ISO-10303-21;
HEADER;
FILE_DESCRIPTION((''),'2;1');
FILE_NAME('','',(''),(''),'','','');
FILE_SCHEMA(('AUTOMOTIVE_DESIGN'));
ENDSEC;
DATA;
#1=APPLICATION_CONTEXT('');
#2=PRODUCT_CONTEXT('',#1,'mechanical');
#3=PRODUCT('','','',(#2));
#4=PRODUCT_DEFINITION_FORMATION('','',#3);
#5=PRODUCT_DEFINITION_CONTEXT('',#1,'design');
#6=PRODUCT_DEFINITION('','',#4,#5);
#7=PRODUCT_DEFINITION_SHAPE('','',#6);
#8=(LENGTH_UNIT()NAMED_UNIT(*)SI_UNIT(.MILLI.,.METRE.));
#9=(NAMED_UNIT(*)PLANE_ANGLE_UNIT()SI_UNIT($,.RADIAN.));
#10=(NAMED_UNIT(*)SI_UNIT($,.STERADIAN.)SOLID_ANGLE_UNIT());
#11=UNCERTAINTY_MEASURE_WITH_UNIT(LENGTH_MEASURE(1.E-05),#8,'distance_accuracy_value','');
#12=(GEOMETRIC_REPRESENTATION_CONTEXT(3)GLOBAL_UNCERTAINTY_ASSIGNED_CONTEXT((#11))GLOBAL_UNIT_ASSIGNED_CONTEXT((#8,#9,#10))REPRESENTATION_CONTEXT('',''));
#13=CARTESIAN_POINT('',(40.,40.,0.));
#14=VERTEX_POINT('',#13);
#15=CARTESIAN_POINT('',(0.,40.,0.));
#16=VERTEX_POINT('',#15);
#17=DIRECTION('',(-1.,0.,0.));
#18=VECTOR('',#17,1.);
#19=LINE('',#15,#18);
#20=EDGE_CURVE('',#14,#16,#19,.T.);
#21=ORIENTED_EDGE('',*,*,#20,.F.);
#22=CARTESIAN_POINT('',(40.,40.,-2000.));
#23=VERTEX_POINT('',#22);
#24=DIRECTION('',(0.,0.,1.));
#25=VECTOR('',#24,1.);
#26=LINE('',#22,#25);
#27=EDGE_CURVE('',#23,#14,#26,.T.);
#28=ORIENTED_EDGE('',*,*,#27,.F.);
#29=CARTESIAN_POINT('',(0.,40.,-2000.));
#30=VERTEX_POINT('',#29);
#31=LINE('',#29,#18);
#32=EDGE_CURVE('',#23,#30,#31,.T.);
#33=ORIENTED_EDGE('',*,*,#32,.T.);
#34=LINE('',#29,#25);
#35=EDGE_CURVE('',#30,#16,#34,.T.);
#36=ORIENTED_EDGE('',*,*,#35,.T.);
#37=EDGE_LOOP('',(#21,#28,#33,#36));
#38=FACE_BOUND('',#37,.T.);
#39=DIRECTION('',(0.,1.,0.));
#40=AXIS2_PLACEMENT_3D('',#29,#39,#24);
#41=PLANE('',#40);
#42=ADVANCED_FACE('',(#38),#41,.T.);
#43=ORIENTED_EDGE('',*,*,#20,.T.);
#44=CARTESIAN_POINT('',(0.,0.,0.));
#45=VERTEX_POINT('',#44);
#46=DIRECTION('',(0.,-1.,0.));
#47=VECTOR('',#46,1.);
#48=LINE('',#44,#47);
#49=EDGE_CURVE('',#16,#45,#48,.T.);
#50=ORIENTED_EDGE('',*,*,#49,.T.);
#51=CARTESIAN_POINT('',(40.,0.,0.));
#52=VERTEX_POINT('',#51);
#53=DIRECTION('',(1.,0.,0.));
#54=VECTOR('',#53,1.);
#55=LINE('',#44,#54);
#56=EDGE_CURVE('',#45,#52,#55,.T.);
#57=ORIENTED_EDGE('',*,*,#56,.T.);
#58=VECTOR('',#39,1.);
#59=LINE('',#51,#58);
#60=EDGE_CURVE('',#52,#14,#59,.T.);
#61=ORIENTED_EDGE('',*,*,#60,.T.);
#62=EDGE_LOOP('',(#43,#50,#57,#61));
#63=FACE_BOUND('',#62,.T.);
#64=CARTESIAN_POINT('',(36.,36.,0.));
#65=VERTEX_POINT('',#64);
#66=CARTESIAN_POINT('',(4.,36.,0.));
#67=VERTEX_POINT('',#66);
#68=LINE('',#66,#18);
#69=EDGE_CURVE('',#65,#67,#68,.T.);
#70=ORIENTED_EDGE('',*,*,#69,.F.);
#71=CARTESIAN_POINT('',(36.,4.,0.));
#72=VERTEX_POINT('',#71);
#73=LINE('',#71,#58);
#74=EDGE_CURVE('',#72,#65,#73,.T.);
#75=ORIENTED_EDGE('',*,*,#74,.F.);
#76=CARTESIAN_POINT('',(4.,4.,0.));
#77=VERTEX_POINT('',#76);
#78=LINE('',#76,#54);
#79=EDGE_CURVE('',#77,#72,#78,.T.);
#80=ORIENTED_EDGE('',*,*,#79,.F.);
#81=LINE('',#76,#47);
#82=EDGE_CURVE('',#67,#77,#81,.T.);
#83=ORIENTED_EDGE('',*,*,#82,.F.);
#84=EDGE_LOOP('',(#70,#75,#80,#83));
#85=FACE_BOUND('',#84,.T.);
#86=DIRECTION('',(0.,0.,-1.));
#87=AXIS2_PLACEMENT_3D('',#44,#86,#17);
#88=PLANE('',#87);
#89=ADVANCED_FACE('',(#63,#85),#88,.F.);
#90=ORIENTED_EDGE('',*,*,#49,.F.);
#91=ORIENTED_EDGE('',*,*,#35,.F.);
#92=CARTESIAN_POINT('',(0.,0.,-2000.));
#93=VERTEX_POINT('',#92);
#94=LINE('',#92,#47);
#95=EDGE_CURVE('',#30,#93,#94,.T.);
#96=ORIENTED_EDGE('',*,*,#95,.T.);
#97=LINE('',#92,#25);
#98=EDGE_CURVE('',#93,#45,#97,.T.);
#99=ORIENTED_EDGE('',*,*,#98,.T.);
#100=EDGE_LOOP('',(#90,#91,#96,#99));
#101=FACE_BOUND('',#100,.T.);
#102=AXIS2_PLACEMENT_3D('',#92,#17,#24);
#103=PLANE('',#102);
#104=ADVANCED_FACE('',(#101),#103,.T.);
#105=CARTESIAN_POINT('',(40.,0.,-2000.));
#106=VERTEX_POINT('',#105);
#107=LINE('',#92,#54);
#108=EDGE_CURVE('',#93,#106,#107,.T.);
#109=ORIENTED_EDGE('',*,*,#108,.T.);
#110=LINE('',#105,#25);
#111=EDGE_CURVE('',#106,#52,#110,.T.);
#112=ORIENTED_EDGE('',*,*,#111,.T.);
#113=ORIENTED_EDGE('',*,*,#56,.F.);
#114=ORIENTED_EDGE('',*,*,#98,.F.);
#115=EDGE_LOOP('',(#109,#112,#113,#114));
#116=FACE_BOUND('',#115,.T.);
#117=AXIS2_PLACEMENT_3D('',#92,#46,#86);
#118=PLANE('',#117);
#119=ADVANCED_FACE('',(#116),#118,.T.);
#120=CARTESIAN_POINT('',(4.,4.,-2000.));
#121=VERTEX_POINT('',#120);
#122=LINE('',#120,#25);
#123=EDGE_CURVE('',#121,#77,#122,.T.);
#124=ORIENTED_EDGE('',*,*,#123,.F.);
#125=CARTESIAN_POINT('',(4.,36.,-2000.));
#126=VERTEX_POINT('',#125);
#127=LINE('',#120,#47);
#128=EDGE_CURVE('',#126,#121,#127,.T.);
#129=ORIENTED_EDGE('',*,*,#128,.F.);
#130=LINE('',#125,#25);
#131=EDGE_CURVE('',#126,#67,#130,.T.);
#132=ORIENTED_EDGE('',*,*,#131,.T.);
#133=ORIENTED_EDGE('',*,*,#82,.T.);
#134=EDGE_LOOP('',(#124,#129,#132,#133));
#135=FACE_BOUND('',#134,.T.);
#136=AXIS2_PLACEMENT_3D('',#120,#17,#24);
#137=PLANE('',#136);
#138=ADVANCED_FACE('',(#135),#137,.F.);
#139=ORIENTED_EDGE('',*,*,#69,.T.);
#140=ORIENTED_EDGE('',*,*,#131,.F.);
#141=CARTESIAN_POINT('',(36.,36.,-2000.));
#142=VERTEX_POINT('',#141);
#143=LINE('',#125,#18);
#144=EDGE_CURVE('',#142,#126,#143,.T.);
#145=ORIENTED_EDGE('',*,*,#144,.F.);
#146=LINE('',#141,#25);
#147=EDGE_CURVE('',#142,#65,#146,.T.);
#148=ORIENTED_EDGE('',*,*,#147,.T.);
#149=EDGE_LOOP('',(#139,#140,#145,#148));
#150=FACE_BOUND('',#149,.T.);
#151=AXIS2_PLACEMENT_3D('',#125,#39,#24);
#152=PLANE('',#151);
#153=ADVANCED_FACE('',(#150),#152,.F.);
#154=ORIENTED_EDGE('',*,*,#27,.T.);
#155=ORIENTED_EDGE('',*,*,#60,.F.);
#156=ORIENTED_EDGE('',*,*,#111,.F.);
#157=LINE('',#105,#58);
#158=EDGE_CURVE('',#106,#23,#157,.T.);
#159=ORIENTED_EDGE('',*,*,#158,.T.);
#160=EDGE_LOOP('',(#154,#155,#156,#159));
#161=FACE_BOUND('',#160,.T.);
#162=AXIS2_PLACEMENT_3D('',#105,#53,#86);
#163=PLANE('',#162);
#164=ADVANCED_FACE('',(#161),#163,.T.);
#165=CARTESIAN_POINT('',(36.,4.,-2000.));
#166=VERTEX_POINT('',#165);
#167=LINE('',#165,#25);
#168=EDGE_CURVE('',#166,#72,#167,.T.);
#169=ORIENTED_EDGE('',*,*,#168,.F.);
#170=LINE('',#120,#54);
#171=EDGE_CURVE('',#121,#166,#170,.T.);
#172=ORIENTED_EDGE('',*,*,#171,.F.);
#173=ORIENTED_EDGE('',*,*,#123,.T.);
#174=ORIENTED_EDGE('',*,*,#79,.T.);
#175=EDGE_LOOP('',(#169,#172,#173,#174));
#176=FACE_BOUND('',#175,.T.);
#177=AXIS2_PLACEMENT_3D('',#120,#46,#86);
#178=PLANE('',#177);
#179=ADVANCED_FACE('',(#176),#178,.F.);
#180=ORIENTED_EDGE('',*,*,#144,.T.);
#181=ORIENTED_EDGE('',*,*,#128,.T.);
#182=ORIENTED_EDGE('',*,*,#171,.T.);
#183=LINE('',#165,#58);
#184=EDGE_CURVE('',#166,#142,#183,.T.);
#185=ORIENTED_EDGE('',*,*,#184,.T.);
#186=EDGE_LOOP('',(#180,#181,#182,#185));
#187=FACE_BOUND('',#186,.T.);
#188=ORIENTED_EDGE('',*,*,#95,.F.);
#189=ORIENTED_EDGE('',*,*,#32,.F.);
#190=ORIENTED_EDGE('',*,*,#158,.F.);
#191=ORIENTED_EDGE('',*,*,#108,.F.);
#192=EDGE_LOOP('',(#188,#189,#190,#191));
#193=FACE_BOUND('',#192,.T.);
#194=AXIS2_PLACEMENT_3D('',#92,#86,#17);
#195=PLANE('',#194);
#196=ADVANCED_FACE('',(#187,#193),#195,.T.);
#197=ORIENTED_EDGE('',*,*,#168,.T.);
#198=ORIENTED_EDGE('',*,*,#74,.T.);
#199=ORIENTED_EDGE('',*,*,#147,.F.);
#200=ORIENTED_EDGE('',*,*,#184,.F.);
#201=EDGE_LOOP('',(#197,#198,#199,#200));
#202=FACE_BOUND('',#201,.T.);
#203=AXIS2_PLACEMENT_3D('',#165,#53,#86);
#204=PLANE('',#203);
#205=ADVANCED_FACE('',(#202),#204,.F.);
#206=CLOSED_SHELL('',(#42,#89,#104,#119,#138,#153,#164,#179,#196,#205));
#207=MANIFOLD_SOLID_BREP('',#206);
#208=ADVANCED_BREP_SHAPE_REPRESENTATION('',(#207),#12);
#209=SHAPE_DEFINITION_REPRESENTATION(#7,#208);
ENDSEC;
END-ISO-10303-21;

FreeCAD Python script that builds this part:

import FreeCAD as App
import Part
import Sketcher

V = App.Vector
Q = App.Units.Quantity

doc = App.newDocument("Part")
body = doc.addObject("PartDesign::Body", "Body")

sketch1 = body.newObject("Sketcher::SketchObject", "Sketch")
sketch1.AttachmentSupport = (doc.getObject("XY_Plane"), [""])
sketch1.MapMode = "FlatFace"
sketch1.addGeometry(Part.LineSegment(V(0, 40, 0), V(0, 0, 0)), False)
sketch1.addGeometry(Part.LineSegment(V(0, 0, 0), V(40, 0, 0)), False)
sketch1.addGeometry(Part.LineSegment(V(40, 0, 0), V(40, 40, 0)), False)
sketch1.addGeometry(Part.LineSegment(V(40, 40, 0), V(0, 40, 0)), False)
sketch1.addGeometry(Part.LineSegment(V(36, 4, 0), V(4, 4, 0)), False)
sketch1.addGeometry(Part.LineSegment(V(4, 4, 0), V(4, 36, 0)), False)
sketch1.addGeometry(Part.LineSegment(V(4, 36, 0), V(36, 36, 0)), False)
sketch1.addGeometry(Part.LineSegment(V(36, 36, 0), V(36, 4, 0)), False)
sketch1.addConstraint(Sketcher.Constraint("Coincident", 0, 2, 1, 1))
sketch1.addConstraint(Sketcher.Constraint("Coincident", 1, 2, 2, 1))
sketch1.addConstraint(Sketcher.Constraint("Coincident", 2, 2, 3, 1))
sketch1.addConstraint(Sketcher.Constraint("Coincident", 3, 2, 0, 1))
sketch1.addConstraint(Sketcher.Constraint("Coincident", 4, 2, 5, 1))
sketch1.addConstraint(Sketcher.Constraint("Coincident", 5, 2, 6, 1))
sketch1.addConstraint(Sketcher.Constraint("Coincident", 6, 2, 7, 1))
sketch1.addConstraint(Sketcher.Constraint("Coincident", 7, 2, 4, 1))
sketch1.addConstraint(Sketcher.Constraint("Vertical", 0))
sketch1.addConstraint(Sketcher.Constraint("Horizontal", 1))
sketch1.addConstraint(Sketcher.Constraint("Vertical", 2))
sketch1.addConstraint(Sketcher.Constraint("Horizontal", 3))
sketch1.addConstraint(Sketcher.Constraint("Horizontal", 4))
sketch1.addConstraint(Sketcher.Constraint("Vertical", 5))
sketch1.addConstraint(Sketcher.Constraint("Horizontal", 6))
sketch1.addConstraint(Sketcher.Constraint("Vertical", 7))
sketch1.addConstraint(Sketcher.Constraint("Coincident", 0, 2, -1, 1))
sketch1.addConstraint(Sketcher.Constraint("Equal", 3, 0))
sketch1.addConstraint(Sketcher.Constraint("Equal", 6, 5))
sketch1.addConstraint(Sketcher.Constraint("DistanceX", 1, 1, 1, 2, Q("40 mm")))
sketch1.addConstraint(Sketcher.Constraint("DistanceX", 4, 2, 4, 1, Q("32 mm")))
sketch1.addConstraint(Sketcher.Constraint("DistanceX", -1, 1, 4, 2, Q("4 mm")))
sketch1.addConstraint(Sketcher.Constraint("DistanceY", -1, 1, 4, 2, Q("4 mm")))
pad1 = body.newObject("PartDesign::Pad", "Pad")
pad1.Profile = sketch1
pad1.Length = 2000
pad1.Reversed = True

doc.recompute()
